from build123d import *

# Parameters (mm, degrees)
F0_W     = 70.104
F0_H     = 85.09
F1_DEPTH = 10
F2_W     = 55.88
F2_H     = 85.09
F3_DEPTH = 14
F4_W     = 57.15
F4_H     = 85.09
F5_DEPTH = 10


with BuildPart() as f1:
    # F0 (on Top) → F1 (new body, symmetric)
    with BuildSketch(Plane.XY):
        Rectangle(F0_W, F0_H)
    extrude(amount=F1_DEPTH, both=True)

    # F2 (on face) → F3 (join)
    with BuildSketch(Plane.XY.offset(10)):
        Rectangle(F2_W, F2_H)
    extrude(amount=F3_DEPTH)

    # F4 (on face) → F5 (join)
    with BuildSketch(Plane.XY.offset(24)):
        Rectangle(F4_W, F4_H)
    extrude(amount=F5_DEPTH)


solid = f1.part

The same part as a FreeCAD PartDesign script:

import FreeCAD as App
import Part
import Sketcher
Q = App.Units.Quantity


def add_polygon(sketch, points):
    """Adds a closed chain of lines whose ends are joined by coincident constraints."""
    first, n = sketch.GeometryCount, len(points)
    for a, b in zip(points, points[1:] + points[:1]):
        sketch.addGeometry(Part.LineSegment(App.Vector(*a, 0), App.Vector(*b, 0)), False)
    for i in range(n):
        sketch.addConstraint(Sketcher.Constraint("Coincident", first + i, 2, first + (i + 1) % n, 1))

doc = App.newDocument("Part")
body = doc.addObject("PartDesign::Body", "Body")

# Sketch on XY plane
sketch1 = body.newObject("Sketcher::SketchObject", "Sketch")
sketch1.AttachmentSupport = (doc.getObject("XY_Plane"), [""])
sketch1.MapMode = "FlatFace"
add_polygon(sketch1, [(-35.052, 42.545), (-35.052, -42.545), (35.052, -42.545), (35.052, 42.545)])  # lines 0-3
sketch1.addConstraint([
    Sketcher.Constraint("Vertical", 0),
    Sketcher.Constraint("Horizontal", 1),
    Sketcher.Constraint("Vertical", 2),
    Sketcher.Constraint("Horizontal", 3),
    Sketcher.Constraint("Symmetric", 0, 2, 2, 2, -1, 1),
    Sketcher.Constraint("DistanceX", 1, 1, 1, 2, Q("2.76 in")),
    Sketcher.Constraint("DistanceY", 0, 2, 0, 1, Q("3.35 in")),
])
pad1 = body.newObject("PartDesign::Pad", "Pad")
pad1.Profile = sketch1
pad1.Length = 20
pad1.Midplane = True

# Sketch on XY plane
sketch2 = body.newObject("Sketcher::SketchObject", "Sketch001")
sketch2.AttachmentSupport = (doc.getObject("XY_Plane"), [""])
sketch2.MapMode = "FlatFace"
sketch2.AttachmentOffset = App.Placement(App.Vector(0, 0, 10), App.Rotation())
add_polygon(sketch2, [(-27.94, 42.545), (-27.94, -42.545), (27.94, -42.545), (27.94, 42.545)])  # lines 0-3
sketch2.addConstraint([
    Sketcher.Constraint("Vertical", 0),
    Sketcher.Constraint("Horizontal", 1),
    Sketcher.Constraint("Vertical", 2),
    Sketcher.Constraint("Horizontal", 3),
    Sketcher.Constraint("Symmetric", 0, 2, 2, 2, -1, 1),
    Sketcher.Constraint("DistanceX", 1, 1, 1, 2, Q("2.2 in")),
    Sketcher.Constraint("DistanceY", 0, 2, 0, 1, Q("3.35 in")),
])
pad2 = body.newObject("PartDesign::Pad", "Pad001")
pad2.Profile = sketch2
pad2.Length = 14

# Sketch on XY plane
sketch3 = body.newObject("Sketcher::SketchObject", "Sketch002")
sketch3.AttachmentSupport = (doc.getObject("XY_Plane"), [""])
sketch3.MapMode = "FlatFace"
sketch3.AttachmentOffset = App.Placement(App.Vector(0, 0, 24), App.Rotation())
add_polygon(sketch3, [(-28.575, 42.545), (-28.575, -42.545), (28.575, -42.545), (28.575, 42.545)])  # lines 0-3
sketch3.addConstraint([
    Sketcher.Constraint("Vertical", 0),
    Sketcher.Constraint("Horizontal", 1),
    Sketcher.Constraint("Vertical", 2),
    Sketcher.Constraint("Horizontal", 3),
    Sketcher.Constraint("Symmetric", 0, 2, 2, 2, -1, 1),
    Sketcher.Constraint("DistanceX", 1, 1, 1, 2, Q("2.25 in")),
    Sketcher.Constraint("DistanceY", 0, 2, 0, 1, Q("3.35 in")),
])
pad3 = body.newObject("PartDesign::Pad", "Pad002")
pad3.Profile = sketch3
pad3.Length = 10

doc.recompute()
